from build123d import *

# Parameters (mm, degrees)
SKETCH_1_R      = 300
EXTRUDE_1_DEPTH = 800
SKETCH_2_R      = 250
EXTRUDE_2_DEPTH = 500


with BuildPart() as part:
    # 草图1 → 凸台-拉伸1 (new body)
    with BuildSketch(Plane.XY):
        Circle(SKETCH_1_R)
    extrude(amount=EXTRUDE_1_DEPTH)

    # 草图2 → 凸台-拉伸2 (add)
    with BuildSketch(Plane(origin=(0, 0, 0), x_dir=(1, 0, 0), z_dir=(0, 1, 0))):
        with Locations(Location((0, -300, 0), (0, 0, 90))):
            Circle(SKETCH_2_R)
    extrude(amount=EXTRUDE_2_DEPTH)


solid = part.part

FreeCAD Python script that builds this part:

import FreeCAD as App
import Part
import Sketcher
from FreeCAD import Vector
Q = App.Units.Quantity

doc = App.newDocument("Part")
body = doc.addObject("PartDesign::Body", "Body")

# Sketch on XY plane
sketch1 = body.newObject("Sketcher::SketchObject", "Sketch")
sketch1.AttachmentSupport = (doc.getObject("XY_Plane"), [""])
sketch1.MapMode = "FlatFace"
sketch1.addGeometry(Part.Circle(Vector(0, 0, 0), Vector(0, 0, 1), 300), False)
sketch1.addConstraint([
    Sketcher.Constraint("Coincident", 0, 3, -1, 1),
    Sketcher.Constraint("Diameter", 0, Q("600 mm")),
])
pad1 = body.newObject("PartDesign::Pad", "Pad")
pad1.Profile = sketch1
pad1.Length = 800

# Sketch on XZ plane
sketch2 = body.newObject("Sketcher::SketchObject", "Sketch001")
sketch2.AttachmentSupport = (doc.getObject("XZ_Plane"), [""])
sketch2.MapMode = "FlatFace"
sketch2.addGeometry(Part.Circle(Vector(0, 300, 0), Vector(0, 0, 1), 250), False)
sketch2.addConstraint([
    Sketcher.Constraint("PointOnObject", 0, 3, -2),
    Sketcher.Constraint("Diameter", 0, Q("500 mm")),
    Sketcher.Constraint("DistanceY", -1, 1, 0, 3, Q("300 mm")),
])
pad2 = body.newObject("PartDesign::Pad", "Pad001")
pad2.Profile = sketch2
pad2.Length = 500
pad2.Reversed = True

doc.recompute()
